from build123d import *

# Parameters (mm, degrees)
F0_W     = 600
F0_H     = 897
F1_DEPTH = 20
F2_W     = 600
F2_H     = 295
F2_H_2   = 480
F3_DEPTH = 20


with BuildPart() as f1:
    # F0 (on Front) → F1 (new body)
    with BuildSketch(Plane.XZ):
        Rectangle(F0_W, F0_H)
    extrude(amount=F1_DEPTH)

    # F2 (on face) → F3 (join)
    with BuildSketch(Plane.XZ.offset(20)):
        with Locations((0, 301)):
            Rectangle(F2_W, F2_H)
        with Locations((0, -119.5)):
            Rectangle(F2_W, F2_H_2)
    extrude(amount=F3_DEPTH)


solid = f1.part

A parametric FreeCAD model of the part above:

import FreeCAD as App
import Part
import Sketcher

doc = App.newDocument("Part")
body = doc.addObject("PartDesign::Body", "Body")

# Sketch on XZ plane
sketch1 = body.newObject("Sketcher::SketchObject", "Sketch")
sketch1.AttachmentSupport = (doc.getObject("XZ_Plane"), [""])
sketch1.MapMode = "FlatFace"
sketch1.addGeometry(Part.LineSegment(App.Vector(-300, 448, 0), App.Vector(-300, -448, 0)), False)
sketch1.addGeometry(Part.LineSegment(App.Vector(-300, -448, 0), App.Vector(300, -448, 0)), False)
sketch1.addGeometry(Part.LineSegment(App.Vector(300, -448, 0), App.Vector(300, 448, 0)), False)
sketch1.addGeometry(Part.LineSegment(App.Vector(300, 448, 0), App.Vector(-300, 448, 0)), False)
sketch1.addConstraint(Sketcher.Constraint("Coincident", 0, 2, 1, 1))
sketch1.addConstraint(Sketcher.Constraint("Coincident", 1, 2, 2, 1))
sketch1.addConstraint(Sketcher.Constraint("Coincident", 2, 2, 3, 1))
sketch1.addConstraint(Sketcher.Constraint("Coincident", 3, 2, 0, 1))
sketch1.addConstraint(Sketcher.Constraint("Vertical", 0))
sketch1.addConstraint(Sketcher.Constraint("Horizontal", 1))
sketch1.addConstraint(Sketcher.Constraint("Vertical", 2))
sketch1.addConstraint(Sketcher.Constraint("Horizontal", 3))
sketch1.addConstraint(Sketcher.Constraint("Symmetric", 0, 2, 2, 2, -1, 1))
sketch1.addConstraint(Sketcher.Constraint("DistanceX", 1, 1, 1, 2, 600.0))
sketch1.addConstraint(Sketcher.Constraint("DistanceY", 0, 2, 0, 1, 897.0))
pad1 = body.newObject("PartDesign::Pad", "Pad")
pad1.Profile = sketch1
pad1.Length = 20

# Sketch on XZ plane
sketch2 = body.newObject("Sketcher::SketchObject", "Sketch001")
sketch2.AttachmentSupport = (doc.getObject("XZ_Plane"), [""])
sketch2.MapMode = "FlatFace"
sketch2.AttachmentOffset = App.Placement(App.Vector(0, 0, 20), App.Rotation())
sketch2.addGeometry(Part.LineSegment(App.Vector(-300, 448, 0), App.Vector(-300, 154, 0)), False)
sketch2.addGeometry(Part.LineSegment(App.Vector(-300, 154, 0), App.Vector(300, 154, 0)), False)
sketch2.addGeometry(Part.LineSegment(App.Vector(300, 154, 0), App.Vector(300, 448, 0)), False)
sketch2.addGeometry(Part.LineSegment(App.Vector(300, 448, 0), App.Vector(-300, 448, 0)), False)
sketch2.addGeometry(Part.LineSegment(App.Vector(-300, 120, 0), App.Vector(-300, -360, 0)), False)
sketch2.addGeometry(Part.LineSegment(App.Vector(-300, -360, 0), App.Vector(300, -360, 0)), False)
sketch2.addGeometry(Part.LineSegment(App.Vector(300, -360, 0), App.Vector(300, 120, 0)), False)
sketch2.addGeometry(Part.LineSegment(App.Vector(300, 120, 0), App.Vector(-300, 120, 0)), False)
sketch2.addConstraint(Sketcher.Constraint("Coincident", 0, 2, 1, 1))
sketch2.addConstraint(Sketcher.Constraint("Coincident", 1, 2, 2, 1))
sketch2.addConstraint(Sketcher.Constraint("Coincident", 2, 2, 3, 1))
sketch2.addConstraint(Sketcher.Constraint("Coincident", 3, 2, 0, 1))
sketch2.addConstraint(Sketcher.Constraint("Coincident", 4, 2, 5, 1))
sketch2.addConstraint(Sketcher.Constraint("Coincident", 5, 2, 6, 1))
sketch2.addConstraint(Sketcher.Constraint("Coincident", 6, 2, 7, 1))
sketch2.addConstraint(Sketcher.Constraint("Coincident", 7, 2, 4, 1))
sketch2.addConstraint(Sketcher.Constraint("Vertical", 0))
sketch2.addConstraint(Sketcher.Constraint("Horizontal", 1))
sketch2.addConstraint(Sketcher.Constraint("Vertical", 2))
sketch2.addConstraint(Sketcher.Constraint("Horizontal", 3))
sketch2.addConstraint(Sketcher.Constraint("Vertical", 4))
sketch2.addConstraint(Sketcher.Constraint("Horizontal", 5))
sketch2.addConstraint(Sketcher.Constraint("Vertical", 6))
sketch2.addConstraint(Sketcher.Constraint("Horizontal", 7))
sketch2.addConstraint(Sketcher.Constraint("Vertical", 3, 2, 4, 2))
sketch2.addConstraint(Sketcher.Constraint("Vertical", 2, 2, 5, 2))
sketch2.addConstraint(Sketcher.Constraint("DistanceX", 1, 1, 1, 2, 600.0))
sketch2.addConstraint(Sketcher.Constraint("DistanceY", 0, 2, 0, 1, 295.0))
sketch2.addConstraint(Sketcher.Constraint("DistanceY", 4, 2, 4, 1, 480.0))
sketch2.addConstraint(Sketcher.Constraint("DistanceX", 0, 2, -1, 1, 300.0))
sketch2.addConstraint(Sketcher.Constraint("DistanceY", 4, 2, 0, 2, 513.0))
sketch2.addConstraint(Sketcher.Constraint("DistanceY", -1, 1, 0, 2, 153.5))
pad2 = body.newObject("PartDesign::Pad", "Pad001")
pad2.Profile = sketch2
pad2.Length = 20

doc.recompute()
